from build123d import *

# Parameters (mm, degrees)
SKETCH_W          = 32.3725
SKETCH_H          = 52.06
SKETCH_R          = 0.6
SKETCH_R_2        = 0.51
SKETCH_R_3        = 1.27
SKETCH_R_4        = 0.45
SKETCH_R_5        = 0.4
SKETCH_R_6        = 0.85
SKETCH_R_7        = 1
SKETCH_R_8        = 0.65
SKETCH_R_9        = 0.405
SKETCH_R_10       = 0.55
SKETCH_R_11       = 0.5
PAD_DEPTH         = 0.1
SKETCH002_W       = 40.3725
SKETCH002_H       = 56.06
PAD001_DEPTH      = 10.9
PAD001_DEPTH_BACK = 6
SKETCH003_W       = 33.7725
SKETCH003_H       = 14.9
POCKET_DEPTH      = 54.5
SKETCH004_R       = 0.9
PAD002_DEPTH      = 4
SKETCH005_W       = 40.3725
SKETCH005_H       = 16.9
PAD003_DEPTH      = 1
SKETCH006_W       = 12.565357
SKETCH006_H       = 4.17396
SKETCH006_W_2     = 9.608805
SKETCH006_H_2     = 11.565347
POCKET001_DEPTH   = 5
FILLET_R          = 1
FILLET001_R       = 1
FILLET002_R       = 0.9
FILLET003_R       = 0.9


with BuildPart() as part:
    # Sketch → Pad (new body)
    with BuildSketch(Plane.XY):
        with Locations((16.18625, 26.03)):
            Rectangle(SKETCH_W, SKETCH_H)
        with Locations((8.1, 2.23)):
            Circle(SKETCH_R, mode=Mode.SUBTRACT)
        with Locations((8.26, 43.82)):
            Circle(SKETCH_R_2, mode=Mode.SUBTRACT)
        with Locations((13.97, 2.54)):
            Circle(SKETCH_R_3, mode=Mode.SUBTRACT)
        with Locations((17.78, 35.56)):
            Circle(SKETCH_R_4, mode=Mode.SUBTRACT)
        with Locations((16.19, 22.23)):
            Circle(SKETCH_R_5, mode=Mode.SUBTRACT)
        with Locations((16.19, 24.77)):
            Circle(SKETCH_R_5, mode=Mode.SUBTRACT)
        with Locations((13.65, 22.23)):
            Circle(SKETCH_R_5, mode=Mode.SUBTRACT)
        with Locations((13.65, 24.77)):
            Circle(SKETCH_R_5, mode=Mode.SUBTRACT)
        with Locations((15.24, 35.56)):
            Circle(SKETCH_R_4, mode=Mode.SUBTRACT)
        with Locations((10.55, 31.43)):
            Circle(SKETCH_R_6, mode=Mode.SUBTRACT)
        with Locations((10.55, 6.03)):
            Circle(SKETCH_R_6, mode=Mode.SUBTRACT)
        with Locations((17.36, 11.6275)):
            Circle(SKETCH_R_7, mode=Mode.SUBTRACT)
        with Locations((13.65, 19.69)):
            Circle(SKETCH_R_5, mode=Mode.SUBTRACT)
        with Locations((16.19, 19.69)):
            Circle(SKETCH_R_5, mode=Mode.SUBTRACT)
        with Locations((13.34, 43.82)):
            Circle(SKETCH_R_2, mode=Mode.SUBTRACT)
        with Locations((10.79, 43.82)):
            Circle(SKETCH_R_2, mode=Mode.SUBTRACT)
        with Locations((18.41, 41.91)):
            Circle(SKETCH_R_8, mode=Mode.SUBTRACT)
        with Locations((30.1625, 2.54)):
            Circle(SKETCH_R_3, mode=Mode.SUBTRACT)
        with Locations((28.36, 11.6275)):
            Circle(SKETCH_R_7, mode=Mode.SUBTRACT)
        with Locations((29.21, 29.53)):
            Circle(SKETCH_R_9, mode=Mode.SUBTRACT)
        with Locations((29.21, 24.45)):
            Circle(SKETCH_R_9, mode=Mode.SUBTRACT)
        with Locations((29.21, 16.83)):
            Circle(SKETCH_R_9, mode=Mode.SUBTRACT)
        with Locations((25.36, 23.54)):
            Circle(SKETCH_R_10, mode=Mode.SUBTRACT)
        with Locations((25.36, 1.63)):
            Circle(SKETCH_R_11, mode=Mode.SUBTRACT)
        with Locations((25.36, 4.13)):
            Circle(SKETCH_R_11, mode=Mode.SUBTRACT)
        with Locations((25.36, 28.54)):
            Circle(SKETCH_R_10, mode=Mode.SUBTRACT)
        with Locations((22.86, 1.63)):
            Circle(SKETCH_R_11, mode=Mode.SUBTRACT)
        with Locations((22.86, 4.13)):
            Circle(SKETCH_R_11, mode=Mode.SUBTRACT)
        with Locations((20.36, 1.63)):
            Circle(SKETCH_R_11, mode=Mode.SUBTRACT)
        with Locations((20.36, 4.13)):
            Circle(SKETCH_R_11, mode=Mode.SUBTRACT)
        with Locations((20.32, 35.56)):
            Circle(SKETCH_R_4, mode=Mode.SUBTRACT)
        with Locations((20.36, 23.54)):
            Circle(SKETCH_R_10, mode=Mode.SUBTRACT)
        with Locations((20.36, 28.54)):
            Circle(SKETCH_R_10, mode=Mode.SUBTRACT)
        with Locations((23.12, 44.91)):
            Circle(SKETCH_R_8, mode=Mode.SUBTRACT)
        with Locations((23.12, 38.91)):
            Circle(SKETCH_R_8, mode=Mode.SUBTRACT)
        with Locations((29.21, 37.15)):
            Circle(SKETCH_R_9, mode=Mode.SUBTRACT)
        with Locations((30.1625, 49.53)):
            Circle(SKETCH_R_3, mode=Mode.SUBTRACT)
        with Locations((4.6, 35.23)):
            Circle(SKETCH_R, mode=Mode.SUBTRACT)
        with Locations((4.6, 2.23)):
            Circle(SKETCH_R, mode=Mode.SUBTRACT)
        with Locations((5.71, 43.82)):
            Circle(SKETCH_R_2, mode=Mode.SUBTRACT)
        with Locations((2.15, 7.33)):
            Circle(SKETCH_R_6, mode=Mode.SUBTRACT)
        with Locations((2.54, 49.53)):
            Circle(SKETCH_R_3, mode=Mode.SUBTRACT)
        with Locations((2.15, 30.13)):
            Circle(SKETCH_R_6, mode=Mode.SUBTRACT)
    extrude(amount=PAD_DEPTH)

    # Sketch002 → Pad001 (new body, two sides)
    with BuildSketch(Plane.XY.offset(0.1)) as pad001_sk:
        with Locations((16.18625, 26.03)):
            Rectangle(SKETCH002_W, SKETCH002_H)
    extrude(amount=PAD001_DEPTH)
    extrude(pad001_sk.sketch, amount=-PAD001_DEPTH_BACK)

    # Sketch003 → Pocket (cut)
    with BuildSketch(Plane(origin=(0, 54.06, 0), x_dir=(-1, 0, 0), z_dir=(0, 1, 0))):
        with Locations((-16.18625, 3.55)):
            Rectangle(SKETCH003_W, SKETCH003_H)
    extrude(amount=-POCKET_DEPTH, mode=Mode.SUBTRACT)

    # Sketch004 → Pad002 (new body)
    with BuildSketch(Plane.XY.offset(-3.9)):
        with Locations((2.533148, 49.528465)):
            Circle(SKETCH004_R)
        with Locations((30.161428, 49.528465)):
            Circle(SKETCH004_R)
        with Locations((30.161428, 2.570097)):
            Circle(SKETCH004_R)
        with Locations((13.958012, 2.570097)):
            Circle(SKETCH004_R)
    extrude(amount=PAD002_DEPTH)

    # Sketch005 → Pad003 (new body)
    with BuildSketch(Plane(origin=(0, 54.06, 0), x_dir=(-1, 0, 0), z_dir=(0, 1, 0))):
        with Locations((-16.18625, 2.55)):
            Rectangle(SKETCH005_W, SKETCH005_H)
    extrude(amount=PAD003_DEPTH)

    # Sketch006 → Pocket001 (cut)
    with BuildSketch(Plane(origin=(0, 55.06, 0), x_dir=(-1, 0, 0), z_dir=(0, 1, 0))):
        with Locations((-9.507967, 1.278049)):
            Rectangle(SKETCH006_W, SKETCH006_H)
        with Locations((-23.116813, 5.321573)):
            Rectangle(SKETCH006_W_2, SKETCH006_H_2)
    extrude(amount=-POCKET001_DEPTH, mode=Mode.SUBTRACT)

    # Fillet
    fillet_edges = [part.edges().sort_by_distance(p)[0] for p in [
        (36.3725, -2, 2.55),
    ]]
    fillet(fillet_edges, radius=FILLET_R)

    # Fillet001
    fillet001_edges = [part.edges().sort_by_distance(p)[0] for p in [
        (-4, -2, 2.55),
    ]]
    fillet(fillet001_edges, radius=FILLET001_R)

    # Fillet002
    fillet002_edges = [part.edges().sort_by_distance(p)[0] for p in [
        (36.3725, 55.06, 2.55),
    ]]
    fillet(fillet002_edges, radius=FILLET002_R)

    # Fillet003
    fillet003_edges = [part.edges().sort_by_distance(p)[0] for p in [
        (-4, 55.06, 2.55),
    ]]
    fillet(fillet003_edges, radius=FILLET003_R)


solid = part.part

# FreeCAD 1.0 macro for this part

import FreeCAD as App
import Part
import Sketcher
Q = App.Units.Quantity


def edges_at(feature, points):
    """Names of the edges that pass closest to the given points."""
    edges = feature.Shape.Edges
    near = lambda p: min(range(len(edges)), key=lambda i: edges[i].distToShape(Part.Vertex(*p))[0])
    return sorted({f"Edge{near(p) + 1}" for p in points})


def add_polygon(sketch, points):
    """Adds a closed chain of lines whose ends are joined by coincident constraints."""
    first, n = sketch.GeometryCount, len(points)
    for a, b in zip(points, points[1:] + points[:1]):
        sketch.addGeometry(Part.LineSegment(App.Vector(*a, 0), App.Vector(*b, 0)), False)
    for i in range(n):
        sketch.addConstraint(Sketcher.Constraint("Coincident", first + i, 2, first + (i + 1) % n, 1))

doc = App.newDocument("Part")
body = doc.addObject("PartDesign::Body", "Body")

sketch1 = body.newObject("Sketcher::SketchObject", "Sketch")
sketch1.AttachmentSupport = (doc.getObject("XY_Plane"), [""])
sketch1.MapMode = "FlatFace"
add_polygon(sketch1, [(0, 52.06), (0, 0), (32.37, 0), (32.37, 52.06)])
sketch1.addGeometry(Part.Circle(App.Vector(4.6, 2.23, 0), App.Vector(0, 0, 1), 0.6), False)
sketch1.addGeometry(Part.Circle(App.Vector(2.15, 7.33, 0), App.Vector(0, 0, 1), 0.85), False)
sketch1.addGeometry(Part.Circle(App.Vector(8.1, 2.23, 0), App.Vector(0, 0, 1), 0.6), False)
sketch1.addGeometry(Part.Circle(App.Vector(10.55, 6.03, 0), App.Vector(0, 0, 1), 0.85), False)
sketch1.addGeometry(Part.Circle(App.Vector(13.97, 2.54, 0), App.Vector(0, 0, 1), 1.27), False)
sketch1.addGeometry(Part.Circle(App.Vector(13.65, 19.69, 0), App.Vector(0, 0, 1), 0.4), False)
sketch1.addGeometry(Part.Circle(App.Vector(16.19, 19.69, 0), App.Vector(0, 0, 1), 0.4), False)
sketch1.addGeometry(Part.Circle(App.Vector(13.65, 22.23, 0), App.Vector(0, 0, 1), 0.4), False)
sketch1.addGeometry(Part.Circle(App.Vector(16.19, 22.23, 0), App.Vector(0, 0, 1), 0.4), False)
sketch1.addGeometry(Part.Circle(App.Vector(13.65, 24.77, 0), App.Vector(0, 0, 1), 0.4), False)
sketch1.addGeometry(Part.Circle(App.Vector(16.19, 24.77, 0), App.Vector(0, 0, 1), 0.4), False)
sketch1.addGeometry(Part.Circle(App.Vector(20.36, 1.63, 0), App.Vector(0, 0, 1), 0.5), False)
sketch1.addGeometry(Part.Circle(App.Vector(20.36, 4.13, 0), App.Vector(0, 0, 1), 0.5), False)
sketch1.addGeometry(Part.Circle(App.Vector(22.86, 1.63, 0), App.Vector(0, 0, 1), 0.5), False)
sketch1.addGeometry(Part.Circle(App.Vector(22.86, 4.13, 0), App.Vector(0, 0, 1), 0.5), False)
sketch1.addGeometry(Part.Circle(App.Vector(17.36, 11.63, 0), App.Vector(0, 0, 1), 1), False)
sketch1.addGeometry(Part.Circle(App.Vector(25.36, 1.63, 0), App.Vector(0, 0, 1), 0.5), False)
sketch1.addGeometry(Part.Circle(App.Vector(25.36, 4.13, 0), App.Vector(0, 0, 1), 0.5), False)
sketch1.addGeometry(Part.Circle(App.Vector(30.16, 2.54, 0), App.Vector(0, 0, 1), 1.27), False)
sketch1.addGeometry(Part.Circle(App.Vector(28.36, 11.63, 0), App.Vector(0, 0, 1), 1), False)
sketch1.addGeometry(Part.Circle(App.Vector(20.36, 23.54, 0), App.Vector(0, 0, 1), 0.55), False)
sketch1.addGeometry(Part.Circle(App.Vector(29.21, 16.83, 0), App.Vector(0, 0, 1), 0.41), False)
sketch1.addGeometry(Part.Circle(App.Vector(25.36, 23.54, 0), App.Vector(0, 0, 1), 0.55), False)
sketch1.addGeometry(Part.Circle(App.Vector(29.21, 24.45, 0), App.Vector(0, 0, 1), 0.41), False)
sketch1.addGeometry(Part.Circle(App.Vector(2.15, 30.13, 0), App.Vector(0, 0, 1), 0.85), False)
sketch1.addGeometry(Part.Circle(App.Vector(4.6, 35.23, 0), App.Vector(0, 0, 1), 0.6), False)
sketch1.addGeometry(Part.Circle(App.Vector(10.55, 31.43, 0), App.Vector(0, 0, 1), 0.85), False)
sketch1.addGeometry(Part.Circle(App.Vector(15.24, 35.56, 0), App.Vector(0, 0, 1), 0.45), False)
sketch1.addGeometry(Part.Circle(App.Vector(5.71, 43.82, 0), App.Vector(0, 0, 1), 0.51), False)
sketch1.addGeometry(Part.Circle(App.Vector(8.26, 43.82, 0), App.Vector(0, 0, 1), 0.51), False)
sketch1.addGeometry(Part.Circle(App.Vector(2.54, 49.53, 0), App.Vector(0, 0, 1), 1.27), False)
sketch1.addGeometry(Part.Circle(App.Vector(10.79, 43.82, 0), App.Vector(0, 0, 1), 0.51), False)
sketch1.addGeometry(Part.Circle(App.Vector(13.34, 43.82, 0), App.Vector(0, 0, 1), 0.51), False)
sketch1.addGeometry(Part.Circle(App.Vector(20.36, 28.54, 0), App.Vector(0, 0, 1), 0.55), False)
sketch1.addGeometry(Part.Circle(App.Vector(17.78, 35.56, 0), App.Vector(0, 0, 1), 0.45), False)
sketch1.addGeometry(Part.Circle(App.Vector(20.32, 35.56, 0), App.Vector(0, 0, 1), 0.45), False)
sketch1.addGeometry(Part.Circle(App.Vector(25.36, 28.54, 0), App.Vector(0, 0, 1), 0.55), False)
sketch1.addGeometry(Part.Circle(App.Vector(29.21, 29.53, 0), App.Vector(0, 0, 1), 0.41), False)
sketch1.addGeometry(Part.Circle(App.Vector(29.21, 37.15, 0), App.Vector(0, 0, 1), 0.41), False)
sketch1.addGeometry(Part.Circle(App.Vector(18.41, 41.91, 0), App.Vector(0, 0, 1), 0.65), False)
sketch1.addGeometry(Part.Circle(App.Vector(23.12, 38.91, 0), App.Vector(0, 0, 1), 0.65), False)
sketch1.addGeometry(Part.Circle(App.Vector(23.12, 44.91, 0), App.Vector(0, 0, 1), 0.65), False)
sketch1.addGeometry(Part.Circle(App.Vector(30.16, 49.53, 0), App.Vector(0, 0, 1), 1.27), False)
sketch1.addConstraint([
    Sketcher.Constraint("Vertical", 0),
    Sketcher.Constraint("Horizontal", 1),
    Sketcher.Constraint("Vertical", 2),
    Sketcher.Constraint("Horizontal", 3),
    Sketcher.Constraint("Coincident", 0, 2, -1, 1),
    Sketcher.Constraint("Equal", 4, 6),
    Sketcher.Constraint("Equal", 5, 7),
    Sketcher.Constraint("Equal", 9, 10),
    Sketcher.Constraint("Equal", 10, 11),
    Sketcher.Constraint("Equal", 11, 12),
    Sketcher.Constraint("Equal", 12, 13),
    Sketcher.Constraint("Equal", 13, 14),
    Sketcher.Constraint("Equal", 15, 16),
    Sketcher.Constraint("Equal", 16, 17),
    Sketcher.Constraint("Equal", 17, 18),
    Sketcher.Constraint("Equal", 18, 20),
    Sketcher.Constraint("Equal", 20, 21),
    Sketcher.Constraint("Equal", 8, 22),
    Sketcher.Constraint("Equal", 19, 23),
    Sketcher.Constraint("Equal", 24, 26),
    Sketcher.Constraint("Equal", 25, 27),
    Sketcher.Constraint("Equal", 7, 28),
    Sketcher.Constraint("Equal", 6, 29),
    Sketcher.Constraint("Equal", 28, 30),
    Sketcher.Constraint("Equal", 32, 33),
    Sketcher.Constraint("Equal", 22, 34),
    Sketcher.Constraint("Equal", 33, 35),
    Sketcher.Constraint("Equal", 35, 36),
    Sketcher.Constraint("Equal", 26, 37),
    Sketcher.Constraint("Equal", 31, 38),
    Sketcher.Constraint("Equal", 38, 39),
    Sketcher.Constraint("Equal", 37, 40),
    Sketcher.Constraint("Equal", 27, 41),
    Sketcher.Constraint("Equal", 41, 42),
    Sketcher.Constraint("Equal", 43, 44),
    Sketcher.Constraint("Equal", 44, 45),
    Sketcher.Constraint("Equal", 34, 46),
    Sketcher.Constraint("Horizontal", 4, 3, 6, 3),
    Sketcher.Constraint("Horizontal", 9, 3, 10, 3),
    Sketcher.Constraint("Horizontal", 11, 3, 12, 3),
    Sketcher.Constraint("Horizontal", 13, 3, 14, 3),
    Sketcher.Constraint("Horizontal", 15, 3, 17, 3),
    Sketcher.Constraint("Horizontal", 16, 3, 18, 3),
    Sketcher.Constraint("Horizontal", 17, 3, 20, 3),
    Sketcher.Constraint("Horizontal", 18, 3, 21, 3),
    Sketcher.Constraint("Horizontal", 8, 3, 22, 3),
    Sketcher.Constraint("Horizontal", 19, 3, 23, 3),
    Sketcher.Constraint("Horizontal", 24, 3, 26, 3),
    Sketcher.Constraint("Horizontal", 32, 3, 33, 3),
    Sketcher.Constraint("Horizontal", 33, 3, 35, 3),
    Sketcher.Constraint("Horizontal", 35, 3, 36, 3),
    Sketcher.Constraint("Horizontal", 31, 3, 38, 3),
    Sketcher.Constraint("Horizontal", 38, 3, 39, 3),
    Sketcher.Constraint("Horizontal", 37, 3, 40, 3),
    Sketcher.Constraint("Horizontal", 34, 3, 46, 3),
    Sketcher.Constraint("Vertical", 9, 3, 11, 3),
    Sketcher.Constraint("Vertical", 10, 3, 12, 3),
    Sketcher.Constraint("Vertical", 11, 3, 13, 3),
    Sketcher.Constraint("Vertical", 12, 3, 14, 3),
    Sketcher.Constraint("Vertical", 15, 3, 16, 3),
    Sketcher.Constraint("Vertical", 17, 3, 18, 3),
    Sketcher.Constraint("Vertical", 20, 3, 21, 3),
    Sketcher.Constraint("Vertical", 16, 3, 24, 3),
    Sketcher.Constraint("Vertical", 21, 3, 26, 3),
    Sketcher.Constraint("Vertical", 25, 3, 27, 3),
    Sketcher.Constraint("Vertical", 5, 3, 28, 3),
    Sketcher.Constraint("Vertical", 4, 3, 29, 3),
    Sketcher.Constraint("Vertical", 7, 3, 30, 3),
    Sketcher.Constraint("Vertical", 24, 3, 37, 3),
    Sketcher.Constraint("Vertical", 26, 3, 40, 3),
    Sketcher.Constraint("Vertical", 27, 3, 41, 3),
    Sketcher.Constraint("Vertical", 41, 3, 42, 3),
    Sketcher.Constraint("Vertical", 44, 3, 45, 3),
    Sketcher.Constraint("Vertical", 22, 3, 46, 3),
    Sketcher.Constraint("Diameter", 15, Q("1 mm")),
    Sketcher.Constraint("Diameter", 19, Q("2 mm")),
    Sketcher.Constraint("Diameter", 4, Q("1.2 mm")),
    Sketcher.Constraint("Diameter", 5, Q("1.7 mm")),
    Sketcher.Constraint("Diameter", 9, Q("0.8 mm")),
    Sketcher.Constraint("Diameter", 24, Q("1.1 mm")),
    Sketcher.Constraint("Diameter", 31, Q("0.9 mm")),
    Sketcher.Constraint("Diameter", 43, Q("1.3 mm")),
    Sketcher.Constraint("Diameter", 8, Q("2.54 mm")),
    Sketcher.Constraint("Diameter", 25, Q("0.81 mm")),
    Sketcher.Constraint("Diameter", 32, Q("1.02 mm")),
    Sketcher.Constraint("DistanceX", 19, 3, 16, 3, Q("3 mm")),
    Sketcher.Constraint("DistanceX", 15, 3, 20, 3, Q("5 mm")),
    Sketcher.Constraint("DistanceX", 21, 3, 23, 3, Q("3 mm")),
    Sketcher.Constraint("DistanceY", 11, 3, 29, 3, Q("13 mm")),
    Sketcher.Constraint("DistanceY", 24, 3, 37, 3, Q("5 mm")),
    Sketcher.Constraint("DistanceY", 44, 3, 43, 3, Q("3 mm")),
    Sketcher.Constraint("DistanceY", 43, 3, 45, 3, Q("3 mm")),
    Sketcher.Constraint("DistanceY", 0, 2, 0, 1, Q("52.06 mm")),
    Sketcher.Constraint("DistanceX", -1, 1, 4, 3, Q("4.6 mm")),
    Sketcher.Constraint("DistanceX", -1, 1, 6, 3, Q("8.1 mm")),
    Sketcher.Constraint("DistanceY", 4, 3, 5, 3, Q("5.1 mm")),
    Sketcher.Constraint("DistanceY", 6, 3, 7, 3, Q("3.8 mm")),
    Sketcher.Constraint("DistanceX", 5, 3, 7, 3, Q("8.4 mm")),
    Sketcher.Constraint("DistanceX", 7, 3, 9, 3, Q("3.1 mm")),
    Sketcher.Constraint("DistanceY", 7, 3, 11, 3, Q("16.2 mm")),
    Sketcher.Constraint("DistanceY", 15, 3, 7, 3, Q("4.4 mm")),
    Sketcher.Constraint("DistanceY", 15, 3, 16, 3, Q("2.5 mm")),
    Sketcher.Constraint("DistanceX", 15, 3, 17, 3, Q("2.5 mm")),
    Sketcher.Constraint("DistanceY", 21, 3, 25, 3, Q("12.7 mm")),
    Sketcher.Constraint("DistanceY", 11, 3, 28, 3, Q("7.9 mm")),
    Sketcher.Constraint("DistanceY", 30, 3, 29, 3, Q("3.8 mm")),
    Sketcher.Constraint("DistanceY", 29, 3, 34, 3, Q("14.3 mm")),
    Sketcher.Constraint("DistanceX", 34, 3, 31, 3, Q("12.7 mm")),
    Sketcher.Constraint("DistanceX", 36, 3, 31, 3, Q("1.9 mm")),
    Sketcher.Constraint("DistanceX", 39, 3, 44, 3, Q("2.8 mm")),
    Sketcher.Constraint("DistanceY", -1, 1, 4, 3, Q("2.23 mm")),
    Sketcher.Constraint("DistanceX", -1, 1, 5, 3, Q("2.15 mm")),
    Sketcher.Constraint("DistanceX", -1, 1, 8, 3, Q("13.97 mm")),
    Sketcher.Constraint("DistanceY", -1, 1, 8, 3, Q("2.54 mm")),
    Sketcher.Constraint("DistanceY", -1, 1, 9, 3, Q("19.69 mm")),
    Sketcher.Constraint("DistanceX", -1, 1, 10, 3, Q("16.19 mm")),
    Sketcher.Constraint("DistanceY", -1, 1, 13, 3, Q("24.77 mm")),
    Sketcher.Constraint("DistanceX", -1, 1, 15, 3, Q("20.36 mm")),
    Sketcher.Constraint("DistanceY", -1, 1, 24, 3, Q("23.54 mm")),
    Sketcher.Constraint("DistanceX", -1, 1, 25, 3, Q("29.21 mm")),
    Sketcher.Constraint("DistanceY", -1, 1, 27, 3, Q("24.45 mm")),
    Sketcher.Constraint("DistanceX", -1, 1, 31, 3, Q("15.24 mm")),
    Sketcher.Constraint("DistanceY", -1, 1, 31, 3, Q("35.56 mm")),
    Sketcher.Constraint("DistanceX", -1, 1, 32, 3, Q("5.71 mm")),
    Sketcher.Constraint("DistanceY", -1, 1, 32, 3, Q("43.82 mm")),
    Sketcher.Constraint("DistanceX", -1, 1, 33, 3, Q("8.26 mm")),
    Sketcher.Constraint("DistanceX", -1, 1, 35, 3, Q("10.79 mm")),
    Sketcher.Constraint("DistanceX", -1, 1, 38, 3, Q("17.78 mm")),
    Sketcher.Constraint("DistanceX", -1, 1, 39, 3, Q("20.32 mm")),
    Sketcher.Constraint("DistanceY", -1, 1, 41, 3, Q("29.53 mm")),
    Sketcher.Constraint("DistanceY", -1, 1, 42, 3, Q("37.15 mm")),
    Sketcher.Constraint("DistanceX", -1, 1, 43, 3, Q("18.41 mm")),
    Sketcher.Constraint("DistanceY", -1, 1, 43, 3, Q("41.91 mm")),
    Sketcher.Constraint("DistanceX", 22, 3, 1, 2, Q("2.21 mm")),
    Sketcher.Constraint("DistanceX", 1, 1, 1, 2, Q("32.3725 mm")),
    Sketcher.Constraint("DistanceY", -1, 1, 19, 3, Q("11.6275 mm")),
])
pad1 = body.newObject("PartDesign::Pad", "Pad")
pad1.Profile = sketch1
pad1.Length = 0.1

sketch2 = body.newObject("Sketcher::SketchObject", "Sketch001")
sketch2.AttachmentSupport = (doc.getObject("XY_Plane"), [""])
sketch2.MapMode = "FlatFace"
sketch2.AttachmentOffset = App.Placement(App.Vector(0, 0, 0.1), App.Rotation())
add_polygon(sketch2, [(-4, 54), (-4, -2), (36, -2), (36, 54)])
sketch2.addConstraint([
    Sketcher.Constraint("Vertical", 0),
    Sketcher.Constraint("Horizontal", 1),
    Sketcher.Constraint("Vertical", 2),
    Sketcher.Constraint("Horizontal", 3),
    Sketcher.Constraint("DistanceX", 0, 2, -1, 1, Q("4 mm")),
    Sketcher.Constraint("DistanceY", 0, 2, -1, 1, Q("2 mm")),
    Sketcher.Constraint("DistanceY", 0, 2, 0, 1, Q("56.06 mm")),
    Sketcher.Constraint("DistanceX", 1, 1, 1, 2, Q("40.3725 mm")),
])
pad2 = body.newObject("PartDesign::Pad", "Pad001")
pad2.Profile = sketch2
pad2.Type = "TwoLengths"
pad2.Length = 10.9
pad2.Length2 = 6

sketch3 = body.newObject("Sketcher::SketchObject", "Sketch002")
sketch3.AttachmentSupport = (doc.getObject("XZ_Plane"), [""])
sketch3.MapMode = "FlatFace"
sketch3.AttachmentOffset = App.Placement(App.Vector(0, 0, -54.06), App.Rotation())
add_polygon(sketch3, [(33, 11), (33, -4), (-1, -4), (-1, 11)])
sketch3.addConstraint([
    Sketcher.Constraint("Vertical", 0),
    Sketcher.Constraint("Horizontal", 1),
    Sketcher.Constraint("Vertical", 2),
    Sketcher.Constraint("Horizontal", 3),
    Sketcher.Constraint("DistanceY", 0, 2, 0, 1, Q("14.9 mm")),
    Sketcher.Constraint("DistanceY", -1, 1, 2, 2, Q("11 mm")),
    Sketcher.Constraint("DistanceX", 1, 2, -1, 1, Q("0.7 mm")),
    Sketcher.Constraint("DistanceX", 1, 2, 1, 1, Q("33.7725 mm")),
])
pocket1 = body.newObject("PartDesign::Pocket", "Pocket")
pocket1.Profile = sketch3
pocket1.Length = 54.5
pocket1.Reversed = True

sketch4 = body.newObject("Sketcher::SketchObject", "Sketch003")
sketch4.AttachmentSupport = (doc.getObject("XY_Plane"), [""])
sketch4.MapMode = "FlatFace"
sketch4.AttachmentOffset = App.Placement(App.Vector(0, 0, -3.9), App.Rotation())
sketch4.addGeometry([
    Part.Circle(App.Vector(2.5, 49.5, 0), App.Vector(0, 0, 1), 0.9),
    Part.Circle(App.Vector(30.2, 49.5, 0), App.Vector(0, 0, 1), 0.9),
    Part.Circle(App.Vector(30.2, 2.6, 0), App.Vector(0, 0, 1), 0.9),
    Part.Circle(App.Vector(14, 2.6, 0), App.Vector(0, 0, 1), 0.9),
], False)
sketch4.addConstraint([
    Sketcher.Constraint("Equal", 0, 1),
    Sketcher.Constraint("Equal", 1, 2),
    Sketcher.Constraint("Equal", 2, 3),
    Sketcher.Constraint("Horizontal", 0, 3, 1, 3),
    Sketcher.Constraint("Horizontal", 2, 3, 3, 3),
    Sketcher.Constraint("Vertical", 1, 3, 2, 3),
    Sketcher.Constraint("Diameter", 0, Q("1.8 mm")),
    Sketcher.Constraint("DistanceX", -1, 1, 0, 3, Q("2.533148 mm")),
    Sketcher.Constraint("DistanceX", -1, 1, 1, 3, Q("30.161428 mm")),
    Sketcher.Constraint("DistanceY", -1, 1, 0, 3, Q("49.528465 mm")),
    Sketcher.Constraint("DistanceY", -1, 1, 2, 3, Q("2.570097 mm")),
    Sketcher.Constraint("DistanceX", -1, 1, 3, 3, Q("13.958012 mm")),
])
pad3 = body.newObject("PartDesign::Pad", "Pad002")
pad3.Profile = sketch4
pad3.Length = 4

sketch5 = body.newObject("Sketcher::SketchObject", "Sketch004")
sketch5.AttachmentSupport = (doc.getObject("XZ_Plane"), [""])
sketch5.MapMode = "FlatFace"
sketch5.AttachmentOffset = App.Placement(App.Vector(0, 0, -54.06), App.Rotation())
add_polygon(sketch5, [(36, 11), (36, -6), (-4, -6), (-4, 11)])
sketch5.addConstraint([
    Sketcher.Constraint("Vertical", 0),
    Sketcher.Constraint("Horizontal", 1),
    Sketcher.Constraint("Vertical", 2),
    Sketcher.Constraint("Horizontal", 3),
    Sketcher.Constraint("DistanceY", 0, 2, 0, 1, Q("16.9 mm")),
    Sketcher.Constraint("DistanceX", 1, 2, -1, 1, Q("4 mm")),
    Sketcher.Constraint("DistanceY", -1, 1, 2, 2, Q("11 mm")),
    Sketcher.Constraint("DistanceX", 1, 2, 1, 1, Q("40.3725 mm")),
])
pad4 = body.newObject("PartDesign::Pad", "Pad003")
pad4.Profile = sketch5
pad4.Length = 1
pad4.Reversed = True

sketch6 = body.newObject("Sketcher::SketchObject", "Sketch005")
sketch6.AttachmentSupport = (doc.getObject("XZ_Plane"), [""])
sketch6.MapMode = "FlatFace"
sketch6.AttachmentOffset = App.Placement(App.Vector(0, 0, -55.06), App.Rotation())
add_polygon(sketch6, [(15.8, 3.4), (15.8, -0.8), (3.2, -0.8), (3.2, 3.4)])
add_polygon(sketch6, [(27.9, 11.1), (27.9, -0.5), (18.3, -0.5), (18.3, 11.1)])
sketch6.addConstraint([
    Sketcher.Constraint("Vertical", 0),
    Sketcher.Constraint("Horizontal", 1),
    Sketcher.Constraint("Vertical", 2),
    Sketcher.Constraint("Horizontal", 3),
    Sketcher.Constraint("Vertical", 4),
    Sketcher.Constraint("Horizontal", 5),
    Sketcher.Constraint("Vertical", 6),
    Sketcher.Constraint("Horizontal", 7),
    Sketcher.Constraint("DistanceY", 0, 2, 0, 1, Q("4.17396 mm")),
    Sketcher.Constraint("DistanceY", 4, 2, -1, 1, Q("0.461101 mm")),
    Sketcher.Constraint("DistanceX", 1, 2, 1, 1, Q("12.565357 mm")),
    Sketcher.Constraint("DistanceX", 5, 2, 5, 1, Q("9.608805 mm")),
    Sketcher.Constraint("DistanceY", 4, 2, 4, 1, Q("11.565347 mm")),
    Sketcher.Constraint("DistanceY", 0, 2, -1, 1, Q("0.808931 mm")),
    Sketcher.Constraint("DistanceX", -1, 1, 1, 2, Q("3.225289 mm")),
    Sketcher.Constraint("DistanceX", -1, 1, 5, 2, Q("18.31241 mm")),
])
pocket2 = body.newObject("PartDesign::Pocket", "Pocket001")
pocket2.Profile = sketch6
pocket2.Length = 5
pocket2.Reversed = True
doc.recompute()

fillet = body.newObject("PartDesign::Fillet", "Fillet")
fillet.Base = (pocket2, edges_at(pocket2, [(36.373, -2, 2.55)]))
fillet.Radius = 1
doc.recompute()

fillet2 = body.newObject("PartDesign::Fillet", "Fillet001")
fillet2.Base = (fillet, edges_at(fillet, [(-4, -2, 2.55)]))
fillet2.Radius = 1
doc.recompute()

fillet3 = body.newObject("PartDesign::Fillet", "Fillet002")
fillet3.Base = (fillet2, edges_at(fillet2, [(36.373, 55.06, 2.55)]))
fillet3.Radius = 0.9
doc.recompute()

fillet4 = body.newObject("PartDesign::Fillet", "Fillet003")
fillet4.Base = (fillet3, edges_at(fillet3, [(-4, 55.06, 2.55)]))
fillet4.Radius = 0.9

doc.recompute()
